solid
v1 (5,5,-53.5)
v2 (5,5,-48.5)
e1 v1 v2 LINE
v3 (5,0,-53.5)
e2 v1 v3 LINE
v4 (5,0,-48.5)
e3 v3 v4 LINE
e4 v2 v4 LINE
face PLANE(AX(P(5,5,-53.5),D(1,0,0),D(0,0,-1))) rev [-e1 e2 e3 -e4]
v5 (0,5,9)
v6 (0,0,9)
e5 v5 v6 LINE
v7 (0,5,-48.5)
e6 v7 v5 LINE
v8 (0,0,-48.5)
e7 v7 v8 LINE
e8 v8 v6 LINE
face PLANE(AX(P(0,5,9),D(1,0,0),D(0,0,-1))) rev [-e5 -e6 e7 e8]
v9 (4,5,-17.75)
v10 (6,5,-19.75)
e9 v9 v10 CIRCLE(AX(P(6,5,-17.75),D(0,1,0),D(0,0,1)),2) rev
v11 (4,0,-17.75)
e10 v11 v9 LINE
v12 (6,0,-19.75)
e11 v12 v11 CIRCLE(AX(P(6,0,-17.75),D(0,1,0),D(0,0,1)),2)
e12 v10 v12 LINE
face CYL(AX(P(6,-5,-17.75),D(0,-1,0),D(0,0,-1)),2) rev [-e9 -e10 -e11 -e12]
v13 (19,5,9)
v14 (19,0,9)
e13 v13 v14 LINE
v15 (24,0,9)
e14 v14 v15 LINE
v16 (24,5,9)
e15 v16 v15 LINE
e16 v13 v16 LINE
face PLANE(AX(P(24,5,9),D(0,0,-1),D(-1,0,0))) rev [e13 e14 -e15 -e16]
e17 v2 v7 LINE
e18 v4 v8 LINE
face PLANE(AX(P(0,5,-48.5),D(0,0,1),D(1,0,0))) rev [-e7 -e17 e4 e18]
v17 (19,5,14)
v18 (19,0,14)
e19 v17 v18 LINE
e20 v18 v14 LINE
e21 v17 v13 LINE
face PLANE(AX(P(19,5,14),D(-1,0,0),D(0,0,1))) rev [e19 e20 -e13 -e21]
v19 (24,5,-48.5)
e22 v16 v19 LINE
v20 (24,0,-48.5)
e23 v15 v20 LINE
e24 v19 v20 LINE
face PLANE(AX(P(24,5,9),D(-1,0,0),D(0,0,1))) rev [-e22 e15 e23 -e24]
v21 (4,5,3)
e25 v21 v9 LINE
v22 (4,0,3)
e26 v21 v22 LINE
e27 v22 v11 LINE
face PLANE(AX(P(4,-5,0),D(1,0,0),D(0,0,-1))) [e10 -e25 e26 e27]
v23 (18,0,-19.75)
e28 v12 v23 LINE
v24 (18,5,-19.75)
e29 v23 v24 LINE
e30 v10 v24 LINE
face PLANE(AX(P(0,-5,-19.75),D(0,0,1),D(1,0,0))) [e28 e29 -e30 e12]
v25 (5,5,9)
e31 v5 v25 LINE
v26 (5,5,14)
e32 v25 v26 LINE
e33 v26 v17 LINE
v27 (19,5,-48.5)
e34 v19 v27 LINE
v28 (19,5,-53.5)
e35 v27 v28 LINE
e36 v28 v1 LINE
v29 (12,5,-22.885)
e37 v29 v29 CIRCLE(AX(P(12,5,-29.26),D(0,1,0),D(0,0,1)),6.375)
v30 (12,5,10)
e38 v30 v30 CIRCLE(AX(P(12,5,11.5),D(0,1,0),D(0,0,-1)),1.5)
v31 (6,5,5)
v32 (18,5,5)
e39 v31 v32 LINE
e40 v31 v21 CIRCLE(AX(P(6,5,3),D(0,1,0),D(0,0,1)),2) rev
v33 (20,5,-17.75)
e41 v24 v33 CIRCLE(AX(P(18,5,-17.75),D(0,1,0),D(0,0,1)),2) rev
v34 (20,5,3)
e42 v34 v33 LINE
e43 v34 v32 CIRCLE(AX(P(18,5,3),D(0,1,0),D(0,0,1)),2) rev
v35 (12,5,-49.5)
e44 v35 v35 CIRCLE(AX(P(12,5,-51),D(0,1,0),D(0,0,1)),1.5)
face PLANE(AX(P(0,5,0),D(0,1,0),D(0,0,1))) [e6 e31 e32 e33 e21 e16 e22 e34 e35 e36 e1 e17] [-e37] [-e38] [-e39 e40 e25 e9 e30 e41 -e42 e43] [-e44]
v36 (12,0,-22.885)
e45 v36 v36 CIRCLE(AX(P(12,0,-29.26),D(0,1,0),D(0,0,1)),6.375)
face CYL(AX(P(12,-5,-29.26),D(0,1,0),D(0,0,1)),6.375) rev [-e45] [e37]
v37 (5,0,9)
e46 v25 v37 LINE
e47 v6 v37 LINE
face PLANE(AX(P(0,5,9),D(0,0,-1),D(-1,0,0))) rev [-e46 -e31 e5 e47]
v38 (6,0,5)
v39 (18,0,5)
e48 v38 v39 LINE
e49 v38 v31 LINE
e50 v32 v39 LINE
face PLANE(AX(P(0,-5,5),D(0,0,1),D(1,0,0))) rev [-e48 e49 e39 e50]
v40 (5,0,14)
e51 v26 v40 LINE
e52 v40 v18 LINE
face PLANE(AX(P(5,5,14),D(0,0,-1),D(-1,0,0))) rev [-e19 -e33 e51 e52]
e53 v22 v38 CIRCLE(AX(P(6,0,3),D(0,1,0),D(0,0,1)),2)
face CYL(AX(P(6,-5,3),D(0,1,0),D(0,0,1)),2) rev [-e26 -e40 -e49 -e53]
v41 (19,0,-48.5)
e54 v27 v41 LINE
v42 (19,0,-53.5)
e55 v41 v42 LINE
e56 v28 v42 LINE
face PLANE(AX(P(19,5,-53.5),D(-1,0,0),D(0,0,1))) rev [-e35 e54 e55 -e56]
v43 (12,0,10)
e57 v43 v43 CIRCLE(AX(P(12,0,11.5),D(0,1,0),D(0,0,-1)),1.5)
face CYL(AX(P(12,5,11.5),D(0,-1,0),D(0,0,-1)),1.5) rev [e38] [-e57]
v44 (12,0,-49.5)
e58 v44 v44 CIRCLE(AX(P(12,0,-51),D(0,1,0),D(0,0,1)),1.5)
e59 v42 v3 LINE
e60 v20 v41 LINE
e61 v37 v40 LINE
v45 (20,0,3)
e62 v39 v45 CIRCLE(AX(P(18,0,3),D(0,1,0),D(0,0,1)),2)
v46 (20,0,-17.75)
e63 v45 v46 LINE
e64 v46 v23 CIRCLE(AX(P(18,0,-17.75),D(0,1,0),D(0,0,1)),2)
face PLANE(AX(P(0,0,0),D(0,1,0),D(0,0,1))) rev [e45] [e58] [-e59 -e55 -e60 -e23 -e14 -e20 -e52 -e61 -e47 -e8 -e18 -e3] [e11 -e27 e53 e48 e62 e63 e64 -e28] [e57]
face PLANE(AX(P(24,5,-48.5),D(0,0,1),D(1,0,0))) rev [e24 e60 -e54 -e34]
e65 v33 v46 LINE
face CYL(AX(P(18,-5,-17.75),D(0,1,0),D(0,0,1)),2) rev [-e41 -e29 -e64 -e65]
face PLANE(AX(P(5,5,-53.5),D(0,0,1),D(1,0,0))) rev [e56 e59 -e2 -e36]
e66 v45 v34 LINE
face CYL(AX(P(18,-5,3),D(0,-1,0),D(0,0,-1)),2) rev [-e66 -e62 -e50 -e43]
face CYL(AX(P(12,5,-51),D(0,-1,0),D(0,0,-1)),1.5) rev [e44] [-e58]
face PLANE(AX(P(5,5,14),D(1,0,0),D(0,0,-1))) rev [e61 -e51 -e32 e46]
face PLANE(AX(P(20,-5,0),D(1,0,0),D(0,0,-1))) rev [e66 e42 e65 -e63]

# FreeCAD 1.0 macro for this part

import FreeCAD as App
import Part
import Sketcher
from FreeCAD import Vector


def edges_at(feature, points):
    """Names of the edges that pass closest to the given points."""
    edges = feature.Shape.Edges
    near = lambda p: min(range(len(edges)), key=lambda i: edges[i].distToShape(Part.Vertex(*p))[0])
    return sorted({f"Edge{near(p) + 1}" for p in points})


def add_polygon(sketch, points):
    """Adds a closed chain of lines whose ends are joined by coincident constraints."""
    first, n = sketch.GeometryCount, len(points)
    for a, b in zip(points, points[1:] + points[:1]):
        sketch.addGeometry(Part.LineSegment(App.Vector(*a, 0), App.Vector(*b, 0)), False)
    for i in range(n):
        sketch.addConstraint(Sketcher.Constraint("Coincident", first + i, 2, first + (i + 1) % n, 1))

doc = App.newDocument("Part")
params = doc.addObject("Spreadsheet::Sheet", "Params")
for row, (alias, value) in enumerate([
    ("sketch1_diameter", "3 mm"),
    ("sketch1_width", "14 mm"),
    ("sketch1_width2", "5 mm"),
    ("sketch1_height", "57.5 mm"),
    ("pad1_length", "5 mm"),
    ("sketch2_diameter", "12.75 mm"),
    ("pocket1_length", "10 mm"),
    ("sketch3_width", "16 mm"),
    ("sketch3_height", "24.75 mm"),
    ("pocket2_length", "10 mm"),
    ("fillet_radius", "2 mm"),
], start=1):
    params.set(f"A{row}", alias)
    params.set(f"B{row}", "=" + value)
    params.setAlias(f"B{row}", alias)

body = doc.addObject("PartDesign::Body", "Body")

# Sketch on XZ plane
sketch1 = body.newObject("Sketcher::SketchObject", "Sketch")
sketch1.AttachmentSupport = (doc.getObject("XZ_Plane"), [""])
sketch1.MapMode = "FlatFace"
add_polygon(sketch1, [(5, 14), (19, 14), (19, 9), (24, 9), (24, -48.5), (19, -48.5), (19, -53.5), (5, -53.5), (5, -48.5), (0, -48.5), (0, 9), (5, 9)])  # lines 0-11
sketch1.addGeometry(Part.Circle(Vector(12, 11.5, 0), Vector(0, 0, 1), 1.5), False)  # 12
sketch1.addGeometry(Part.Circle(Vector(12, -51, 0), Vector(0, 0, 1), 1.5), False)  # 13
sketch1.addConstraint([
    Sketcher.Constraint("Horizontal", 0),
    Sketcher.Constraint("Vertical", 1),
    Sketcher.Constraint("Horizontal", 2),
    Sketcher.Constraint("Vertical", 3),
    Sketcher.Constraint("Horizontal", 4),
    Sketcher.Constraint("Vertical", 5),
    Sketcher.Constraint("Horizontal", 6),
    Sketcher.Constraint("Vertical", 7),
    Sketcher.Constraint("Horizontal", 8),
    Sketcher.Constraint("Vertical", 9),
    Sketcher.Constraint("Horizontal", 10),
    Sketcher.Constraint("Vertical", 11),
    Sketcher.Constraint("Equal", 12, 13),
    Sketcher.Constraint("PointOnObject", 8, 2, -2),
    Sketcher.Constraint("Horizontal", 4, 2, 7, 2),
    Sketcher.Constraint("Horizontal", 2, 2, 9, 2),
    Sketcher.Constraint("Vertical", 12, 3, 13, 3),
    Sketcher.Constraint("Vertical", 1, 2, 4, 2),
    Sketcher.Constraint("Vertical", 7, 2, 10, 2),
    Sketcher.Constraint("Equal", 4, 8),
    Sketcher.Constraint("Equal", 10, 1),
    Sketcher.Constraint("Equal", 1, 5),
    Sketcher.Constraint("Diameter", 12, 3.0),
    Sketcher.Constraint("DistanceX", 0, 1, 0, 2, 14.0),
    Sketcher.Constraint("DistanceX", 2, 1, 2, 2, 5.0),
    Sketcher.Constraint("DistanceY", 3, 2, 3, 1, 57.5),
    Sketcher.Constraint("DistanceX", -1, 1, 12, 3, 12.0),
    Sketcher.Constraint("DistanceY", 13, 3, -1, 1, 51.0),
    Sketcher.Constraint("DistanceY", -1, 1, 0, 2, 14.0),
    Sketcher.Constraint("DistanceY", 3, 2, 12, 3, 60.0),
])
sketch1.setExpression("Constraints[34]", "Params.sketch1_diameter")
sketch1.setExpression("Constraints[35]", "Params.sketch1_width")
sketch1.setExpression("Constraints[36]", "Params.sketch1_width2")
sketch1.setExpression("Constraints[37]", "Params.sketch1_height")
pad1 = body.newObject("PartDesign::Pad", "Pad")
pad1.Profile = sketch1
pad1.setExpression("Length", "Params.pad1_length")
pad1.Reversed = True

# Sketch on XZ plane
sketch2 = body.newObject("Sketcher::SketchObject", "Sketch001")
sketch2.AttachmentSupport = (doc.getObject("XZ_Plane"), [""])
sketch2.MapMode = "FlatFace"
sketch2.AttachmentOffset = App.Placement(Vector(0, 0, -5), App.Rotation())
sketch2.addGeometry(Part.Circle(Vector(12, -29, 0), Vector(0, 0, 1), 6), False)
sketch2.addConstraint([
    Sketcher.Constraint("Diameter", 0, 12.75),
    Sketcher.Constraint("DistanceX", -1, 1, 0, 3, 12.0),
    Sketcher.Constraint("DistanceY", 0, 3, -1, 1, 29.26),
])
sketch2.setExpression("Constraints[0]", "Params.sketch2_diameter")
pocket1 = body.newObject("PartDesign::Pocket", "Pocket")
pocket1.Profile = sketch2
pocket1.setExpression("Length", "Params.pocket1_length")
pocket1.Reversed = True

# Sketch on XZ plane
sketch3 = body.newObject("Sketcher::SketchObject", "Sketch002")
sketch3.AttachmentSupport = (doc.getObject("XZ_Plane"), [""])
sketch3.MapMode = "FlatFace"
sketch3.AttachmentOffset = App.Placement(Vector(0, 0, -5), App.Rotation())
add_polygon(sketch3, [(4, -20), (4, 5), (20, 5), (20, -20)])  # lines 0-3
sketch3.addConstraint([
    Sketcher.Constraint("Vertical", 0),
    Sketcher.Constraint("Horizontal", 1),
    Sketcher.Constraint("Vertical", 2),
    Sketcher.Constraint("Horizontal", 3),
    Sketcher.Constraint("DistanceX", 1, 1, 1, 2, 16.0),
    Sketcher.Constraint("DistanceX", -1, 1, 0, 2, 4.0),
    Sketcher.Constraint("DistanceY", -1, 1, 0, 2, 5.0),
    Sketcher.Constraint("DistanceY", 0, 1, 0, 2, 24.75),
])
sketch3.setExpression("Constraints[8]", "Params.sketch3_width")
sketch3.setExpression("Constraints[11]", "Params.sketch3_height")
pocket2 = body.newObject("PartDesign::Pocket", "Pocket001")
pocket2.Profile = sketch3
pocket2.setExpression("Length", "Params.pocket2_length")
pocket2.Reversed = True
doc.recompute()

fillet = body.newObject("PartDesign::Fillet", "Fillet")
fillet.Base = (pocket2, edges_at(pocket2, [
    (20, 2.5, 5),
    (4, 2.5, 5),
    (4, 2.5, -19.75),
    (20, 2.5, -19.75),
]))
fillet.setExpression("Radius", "Params.fillet_radius")

doc.recompute()
